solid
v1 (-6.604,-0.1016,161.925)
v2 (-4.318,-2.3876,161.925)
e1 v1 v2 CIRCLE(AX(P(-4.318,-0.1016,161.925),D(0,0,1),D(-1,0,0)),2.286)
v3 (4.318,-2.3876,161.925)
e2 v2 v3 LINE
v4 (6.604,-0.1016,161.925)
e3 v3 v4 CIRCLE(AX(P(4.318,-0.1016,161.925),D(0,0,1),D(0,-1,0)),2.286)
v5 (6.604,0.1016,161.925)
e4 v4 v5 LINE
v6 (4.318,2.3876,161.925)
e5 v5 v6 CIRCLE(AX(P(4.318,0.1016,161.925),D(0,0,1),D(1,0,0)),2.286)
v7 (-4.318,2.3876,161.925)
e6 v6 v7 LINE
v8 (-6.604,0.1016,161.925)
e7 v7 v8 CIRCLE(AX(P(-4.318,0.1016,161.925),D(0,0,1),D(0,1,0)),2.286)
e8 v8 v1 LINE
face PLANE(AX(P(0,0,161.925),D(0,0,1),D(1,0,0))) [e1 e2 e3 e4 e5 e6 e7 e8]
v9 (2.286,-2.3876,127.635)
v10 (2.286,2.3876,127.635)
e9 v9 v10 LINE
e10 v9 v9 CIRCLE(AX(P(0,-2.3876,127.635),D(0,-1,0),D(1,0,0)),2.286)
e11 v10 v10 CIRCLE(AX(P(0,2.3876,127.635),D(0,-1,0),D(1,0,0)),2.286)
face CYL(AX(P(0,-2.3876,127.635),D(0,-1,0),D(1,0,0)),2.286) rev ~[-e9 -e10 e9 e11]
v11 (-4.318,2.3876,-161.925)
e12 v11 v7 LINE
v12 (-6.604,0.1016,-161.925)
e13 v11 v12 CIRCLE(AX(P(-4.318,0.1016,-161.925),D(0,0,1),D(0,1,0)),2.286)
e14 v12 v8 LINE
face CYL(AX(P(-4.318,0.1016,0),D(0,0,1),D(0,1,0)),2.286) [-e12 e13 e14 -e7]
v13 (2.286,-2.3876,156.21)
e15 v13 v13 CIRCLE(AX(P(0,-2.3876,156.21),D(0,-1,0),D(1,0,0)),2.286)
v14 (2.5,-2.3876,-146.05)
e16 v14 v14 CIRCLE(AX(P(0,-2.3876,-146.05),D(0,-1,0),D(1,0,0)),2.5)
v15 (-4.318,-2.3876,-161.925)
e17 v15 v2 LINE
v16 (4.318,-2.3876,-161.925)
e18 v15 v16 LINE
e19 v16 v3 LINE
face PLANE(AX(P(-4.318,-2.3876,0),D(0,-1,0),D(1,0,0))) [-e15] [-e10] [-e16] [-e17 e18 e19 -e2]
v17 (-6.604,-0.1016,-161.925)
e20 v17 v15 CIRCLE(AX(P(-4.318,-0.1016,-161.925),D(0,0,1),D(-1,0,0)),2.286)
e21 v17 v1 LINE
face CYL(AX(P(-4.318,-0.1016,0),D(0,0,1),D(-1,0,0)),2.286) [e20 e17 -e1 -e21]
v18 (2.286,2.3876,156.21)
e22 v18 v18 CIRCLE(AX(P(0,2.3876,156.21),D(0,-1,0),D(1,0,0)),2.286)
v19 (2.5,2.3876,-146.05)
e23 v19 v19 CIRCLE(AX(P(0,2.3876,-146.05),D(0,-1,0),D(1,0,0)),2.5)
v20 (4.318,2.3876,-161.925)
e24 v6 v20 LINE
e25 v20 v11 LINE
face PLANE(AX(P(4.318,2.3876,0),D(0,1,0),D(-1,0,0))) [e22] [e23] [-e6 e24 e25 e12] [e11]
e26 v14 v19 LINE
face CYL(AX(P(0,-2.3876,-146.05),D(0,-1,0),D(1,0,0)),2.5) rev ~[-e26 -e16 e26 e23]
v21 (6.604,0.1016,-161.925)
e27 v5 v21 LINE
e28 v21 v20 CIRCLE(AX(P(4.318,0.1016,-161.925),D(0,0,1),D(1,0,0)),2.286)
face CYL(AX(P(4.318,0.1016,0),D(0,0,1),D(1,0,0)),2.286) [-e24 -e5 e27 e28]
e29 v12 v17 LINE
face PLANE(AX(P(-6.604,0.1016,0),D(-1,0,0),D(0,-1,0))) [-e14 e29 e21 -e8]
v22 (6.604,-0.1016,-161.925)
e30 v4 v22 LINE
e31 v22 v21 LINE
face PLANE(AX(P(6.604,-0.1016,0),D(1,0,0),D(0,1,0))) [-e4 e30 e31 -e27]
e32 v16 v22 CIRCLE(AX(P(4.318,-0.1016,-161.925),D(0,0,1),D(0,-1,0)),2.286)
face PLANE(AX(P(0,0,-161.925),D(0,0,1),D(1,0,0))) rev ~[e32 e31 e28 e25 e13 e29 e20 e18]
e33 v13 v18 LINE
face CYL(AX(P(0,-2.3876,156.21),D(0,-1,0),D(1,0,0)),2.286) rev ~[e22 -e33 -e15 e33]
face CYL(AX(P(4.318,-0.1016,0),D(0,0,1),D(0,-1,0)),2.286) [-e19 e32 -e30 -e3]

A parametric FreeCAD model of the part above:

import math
import FreeCAD as App
import Part
import Sketcher
from FreeCAD import Vector
Q = App.Units.Quantity

doc = App.newDocument("Part")
body = doc.addObject("PartDesign::Body", "Body")

sketch1 = body.newObject("Sketcher::SketchObject", "Sketch")
sketch1.AttachmentSupport = (doc.getObject("XY_Plane"), [""])
sketch1.MapMode = "FlatFace"
sketch1.addGeometry([
    Part.LineSegment(Vector(4.318, 2.3876, 0), Vector(-4.318, 2.3876, 0)),
    Part.ArcOfCircle(Part.Circle(Vector(-4.318, 0.1016, 0), Vector(0, 0, 1), 2.286), math.radians(90), math.radians(180)),
    Part.LineSegment(Vector(-6.604, 0.1016, 0), Vector(-6.604, -0.1016, 0)),
    Part.ArcOfCircle(Part.Circle(Vector(-4.318, -0.1016, 0), Vector(0, 0, 1), 2.286), math.radians(180), math.radians(270)),
    Part.LineSegment(Vector(-4.318, -2.3876, 0), Vector(4.318, -2.3876, 0)),
    Part.ArcOfCircle(Part.Circle(Vector(4.318, -0.1016, 0), Vector(0, 0, 1), 2.286), math.radians(-90), math.radians(0)),
    Part.LineSegment(Vector(6.604, -0.1016, 0), Vector(6.604, 0.1016, 0)),
    Part.ArcOfCircle(Part.Circle(Vector(4.318, 0.1016, 0), Vector(0, 0, 1), 2.286), math.radians(0), math.radians(90)),
], False)
sketch1.addConstraint([
    Sketcher.Constraint("Tangent", 0, 2, 1, 1),
    Sketcher.Constraint("Tangent", 1, 2, 2, 1),
    Sketcher.Constraint("Tangent", 2, 2, 3, 1),
    Sketcher.Constraint("Tangent", 3, 2, 4, 1),
    Sketcher.Constraint("Tangent", 4, 2, 5, 1),
    Sketcher.Constraint("Tangent", 5, 2, 6, 1),
    Sketcher.Constraint("Tangent", 6, 2, 7, 1),
    Sketcher.Constraint("Tangent", 7, 2, 0, 1),
    Sketcher.Constraint("Horizontal", 0),
    Sketcher.Constraint("Vertical", 2),
    Sketcher.Constraint("Horizontal", 4),
    Sketcher.Constraint("Vertical", 6),
    Sketcher.Constraint("Equal", 1, 3),
    Sketcher.Constraint("Equal", 3, 5),
    Sketcher.Constraint("Equal", 5, 7),
    Sketcher.Constraint("Symmetric", 1, 3, 5, 3, -1, 1),
    Sketcher.Constraint("Radius", 1, Q("0.09 in")),
    Sketcher.Constraint("DistanceX", 0, 2, 0, 1, Q("0.34 in")),
    Sketcher.Constraint("DistanceY", 2, 2, 2, 1, Q("0.008 in")),
])
pad1 = body.newObject("PartDesign::Pad", "Pad")
pad1.Profile = sketch1
pad1.Length = Q("12.75 in")
pad1.Midplane = True

sketch2 = body.newObject("Sketcher::SketchObject", "Sketch001")
sketch2.AttachmentSupport = (doc.getObject("XZ_Plane"), [""])
sketch2.MapMode = "FlatFace"
sketch2.AttachmentOffset = App.Placement(Vector(0, 0, 0.094 * 25.4), App.Rotation())
sketch2.addGeometry([
    Part.Circle(Vector(0, 156.21, 0), Vector(0, 0, 1), 2.286),
    Part.Circle(Vector(0, 127.635, 0), Vector(0, 0, 1), 2.286),
], False)
sketch2.addConstraint([
    Sketcher.Constraint("Equal", 0, 1),
    Sketcher.Constraint("PointOnObject", 0, 3, -2),
    Sketcher.Constraint("PointOnObject", 1, 3, -2),
    Sketcher.Constraint("Diameter", 0, Q("0.18 in")),
    Sketcher.Constraint("DistanceY", -1, 1, 0, 3, Q("6.15 in")),
    Sketcher.Constraint("DistanceY", -1, 1, 1, 3, Q("5.025 in")),
])
pocket1 = body.newObject("PartDesign::Pocket", "Pocket")
pocket1.Profile = sketch2
pocket1.Length = Q("1 in")

sketch3 = body.newObject("Sketcher::SketchObject", "Sketch002")
sketch3.AttachmentSupport = (doc.getObject("XZ_Plane"), [""])
sketch3.MapMode = "FlatFace"
sketch3.AttachmentOffset = App.Placement(Vector(0, 0, 0.094 * 25.4), App.Rotation())
sketch3.addGeometry(Part.Circle(Vector(0, -146.05, 0), Vector(0, 0, 1), 2.5), False)
sketch3.addConstraint([
    Sketcher.Constraint("PointOnObject", 0, 3, -2),
    Sketcher.Constraint("Diameter", 0, Q("5 mm")),
    Sketcher.Constraint("DistanceY", 0, 3, -1, 1, Q("5.75 in")),
])
pocket2 = body.newObject("PartDesign::Pocket", "Pocket001")
pocket2.Profile = sketch3
pocket2.Length = Q("1 in")

doc.recompute()
